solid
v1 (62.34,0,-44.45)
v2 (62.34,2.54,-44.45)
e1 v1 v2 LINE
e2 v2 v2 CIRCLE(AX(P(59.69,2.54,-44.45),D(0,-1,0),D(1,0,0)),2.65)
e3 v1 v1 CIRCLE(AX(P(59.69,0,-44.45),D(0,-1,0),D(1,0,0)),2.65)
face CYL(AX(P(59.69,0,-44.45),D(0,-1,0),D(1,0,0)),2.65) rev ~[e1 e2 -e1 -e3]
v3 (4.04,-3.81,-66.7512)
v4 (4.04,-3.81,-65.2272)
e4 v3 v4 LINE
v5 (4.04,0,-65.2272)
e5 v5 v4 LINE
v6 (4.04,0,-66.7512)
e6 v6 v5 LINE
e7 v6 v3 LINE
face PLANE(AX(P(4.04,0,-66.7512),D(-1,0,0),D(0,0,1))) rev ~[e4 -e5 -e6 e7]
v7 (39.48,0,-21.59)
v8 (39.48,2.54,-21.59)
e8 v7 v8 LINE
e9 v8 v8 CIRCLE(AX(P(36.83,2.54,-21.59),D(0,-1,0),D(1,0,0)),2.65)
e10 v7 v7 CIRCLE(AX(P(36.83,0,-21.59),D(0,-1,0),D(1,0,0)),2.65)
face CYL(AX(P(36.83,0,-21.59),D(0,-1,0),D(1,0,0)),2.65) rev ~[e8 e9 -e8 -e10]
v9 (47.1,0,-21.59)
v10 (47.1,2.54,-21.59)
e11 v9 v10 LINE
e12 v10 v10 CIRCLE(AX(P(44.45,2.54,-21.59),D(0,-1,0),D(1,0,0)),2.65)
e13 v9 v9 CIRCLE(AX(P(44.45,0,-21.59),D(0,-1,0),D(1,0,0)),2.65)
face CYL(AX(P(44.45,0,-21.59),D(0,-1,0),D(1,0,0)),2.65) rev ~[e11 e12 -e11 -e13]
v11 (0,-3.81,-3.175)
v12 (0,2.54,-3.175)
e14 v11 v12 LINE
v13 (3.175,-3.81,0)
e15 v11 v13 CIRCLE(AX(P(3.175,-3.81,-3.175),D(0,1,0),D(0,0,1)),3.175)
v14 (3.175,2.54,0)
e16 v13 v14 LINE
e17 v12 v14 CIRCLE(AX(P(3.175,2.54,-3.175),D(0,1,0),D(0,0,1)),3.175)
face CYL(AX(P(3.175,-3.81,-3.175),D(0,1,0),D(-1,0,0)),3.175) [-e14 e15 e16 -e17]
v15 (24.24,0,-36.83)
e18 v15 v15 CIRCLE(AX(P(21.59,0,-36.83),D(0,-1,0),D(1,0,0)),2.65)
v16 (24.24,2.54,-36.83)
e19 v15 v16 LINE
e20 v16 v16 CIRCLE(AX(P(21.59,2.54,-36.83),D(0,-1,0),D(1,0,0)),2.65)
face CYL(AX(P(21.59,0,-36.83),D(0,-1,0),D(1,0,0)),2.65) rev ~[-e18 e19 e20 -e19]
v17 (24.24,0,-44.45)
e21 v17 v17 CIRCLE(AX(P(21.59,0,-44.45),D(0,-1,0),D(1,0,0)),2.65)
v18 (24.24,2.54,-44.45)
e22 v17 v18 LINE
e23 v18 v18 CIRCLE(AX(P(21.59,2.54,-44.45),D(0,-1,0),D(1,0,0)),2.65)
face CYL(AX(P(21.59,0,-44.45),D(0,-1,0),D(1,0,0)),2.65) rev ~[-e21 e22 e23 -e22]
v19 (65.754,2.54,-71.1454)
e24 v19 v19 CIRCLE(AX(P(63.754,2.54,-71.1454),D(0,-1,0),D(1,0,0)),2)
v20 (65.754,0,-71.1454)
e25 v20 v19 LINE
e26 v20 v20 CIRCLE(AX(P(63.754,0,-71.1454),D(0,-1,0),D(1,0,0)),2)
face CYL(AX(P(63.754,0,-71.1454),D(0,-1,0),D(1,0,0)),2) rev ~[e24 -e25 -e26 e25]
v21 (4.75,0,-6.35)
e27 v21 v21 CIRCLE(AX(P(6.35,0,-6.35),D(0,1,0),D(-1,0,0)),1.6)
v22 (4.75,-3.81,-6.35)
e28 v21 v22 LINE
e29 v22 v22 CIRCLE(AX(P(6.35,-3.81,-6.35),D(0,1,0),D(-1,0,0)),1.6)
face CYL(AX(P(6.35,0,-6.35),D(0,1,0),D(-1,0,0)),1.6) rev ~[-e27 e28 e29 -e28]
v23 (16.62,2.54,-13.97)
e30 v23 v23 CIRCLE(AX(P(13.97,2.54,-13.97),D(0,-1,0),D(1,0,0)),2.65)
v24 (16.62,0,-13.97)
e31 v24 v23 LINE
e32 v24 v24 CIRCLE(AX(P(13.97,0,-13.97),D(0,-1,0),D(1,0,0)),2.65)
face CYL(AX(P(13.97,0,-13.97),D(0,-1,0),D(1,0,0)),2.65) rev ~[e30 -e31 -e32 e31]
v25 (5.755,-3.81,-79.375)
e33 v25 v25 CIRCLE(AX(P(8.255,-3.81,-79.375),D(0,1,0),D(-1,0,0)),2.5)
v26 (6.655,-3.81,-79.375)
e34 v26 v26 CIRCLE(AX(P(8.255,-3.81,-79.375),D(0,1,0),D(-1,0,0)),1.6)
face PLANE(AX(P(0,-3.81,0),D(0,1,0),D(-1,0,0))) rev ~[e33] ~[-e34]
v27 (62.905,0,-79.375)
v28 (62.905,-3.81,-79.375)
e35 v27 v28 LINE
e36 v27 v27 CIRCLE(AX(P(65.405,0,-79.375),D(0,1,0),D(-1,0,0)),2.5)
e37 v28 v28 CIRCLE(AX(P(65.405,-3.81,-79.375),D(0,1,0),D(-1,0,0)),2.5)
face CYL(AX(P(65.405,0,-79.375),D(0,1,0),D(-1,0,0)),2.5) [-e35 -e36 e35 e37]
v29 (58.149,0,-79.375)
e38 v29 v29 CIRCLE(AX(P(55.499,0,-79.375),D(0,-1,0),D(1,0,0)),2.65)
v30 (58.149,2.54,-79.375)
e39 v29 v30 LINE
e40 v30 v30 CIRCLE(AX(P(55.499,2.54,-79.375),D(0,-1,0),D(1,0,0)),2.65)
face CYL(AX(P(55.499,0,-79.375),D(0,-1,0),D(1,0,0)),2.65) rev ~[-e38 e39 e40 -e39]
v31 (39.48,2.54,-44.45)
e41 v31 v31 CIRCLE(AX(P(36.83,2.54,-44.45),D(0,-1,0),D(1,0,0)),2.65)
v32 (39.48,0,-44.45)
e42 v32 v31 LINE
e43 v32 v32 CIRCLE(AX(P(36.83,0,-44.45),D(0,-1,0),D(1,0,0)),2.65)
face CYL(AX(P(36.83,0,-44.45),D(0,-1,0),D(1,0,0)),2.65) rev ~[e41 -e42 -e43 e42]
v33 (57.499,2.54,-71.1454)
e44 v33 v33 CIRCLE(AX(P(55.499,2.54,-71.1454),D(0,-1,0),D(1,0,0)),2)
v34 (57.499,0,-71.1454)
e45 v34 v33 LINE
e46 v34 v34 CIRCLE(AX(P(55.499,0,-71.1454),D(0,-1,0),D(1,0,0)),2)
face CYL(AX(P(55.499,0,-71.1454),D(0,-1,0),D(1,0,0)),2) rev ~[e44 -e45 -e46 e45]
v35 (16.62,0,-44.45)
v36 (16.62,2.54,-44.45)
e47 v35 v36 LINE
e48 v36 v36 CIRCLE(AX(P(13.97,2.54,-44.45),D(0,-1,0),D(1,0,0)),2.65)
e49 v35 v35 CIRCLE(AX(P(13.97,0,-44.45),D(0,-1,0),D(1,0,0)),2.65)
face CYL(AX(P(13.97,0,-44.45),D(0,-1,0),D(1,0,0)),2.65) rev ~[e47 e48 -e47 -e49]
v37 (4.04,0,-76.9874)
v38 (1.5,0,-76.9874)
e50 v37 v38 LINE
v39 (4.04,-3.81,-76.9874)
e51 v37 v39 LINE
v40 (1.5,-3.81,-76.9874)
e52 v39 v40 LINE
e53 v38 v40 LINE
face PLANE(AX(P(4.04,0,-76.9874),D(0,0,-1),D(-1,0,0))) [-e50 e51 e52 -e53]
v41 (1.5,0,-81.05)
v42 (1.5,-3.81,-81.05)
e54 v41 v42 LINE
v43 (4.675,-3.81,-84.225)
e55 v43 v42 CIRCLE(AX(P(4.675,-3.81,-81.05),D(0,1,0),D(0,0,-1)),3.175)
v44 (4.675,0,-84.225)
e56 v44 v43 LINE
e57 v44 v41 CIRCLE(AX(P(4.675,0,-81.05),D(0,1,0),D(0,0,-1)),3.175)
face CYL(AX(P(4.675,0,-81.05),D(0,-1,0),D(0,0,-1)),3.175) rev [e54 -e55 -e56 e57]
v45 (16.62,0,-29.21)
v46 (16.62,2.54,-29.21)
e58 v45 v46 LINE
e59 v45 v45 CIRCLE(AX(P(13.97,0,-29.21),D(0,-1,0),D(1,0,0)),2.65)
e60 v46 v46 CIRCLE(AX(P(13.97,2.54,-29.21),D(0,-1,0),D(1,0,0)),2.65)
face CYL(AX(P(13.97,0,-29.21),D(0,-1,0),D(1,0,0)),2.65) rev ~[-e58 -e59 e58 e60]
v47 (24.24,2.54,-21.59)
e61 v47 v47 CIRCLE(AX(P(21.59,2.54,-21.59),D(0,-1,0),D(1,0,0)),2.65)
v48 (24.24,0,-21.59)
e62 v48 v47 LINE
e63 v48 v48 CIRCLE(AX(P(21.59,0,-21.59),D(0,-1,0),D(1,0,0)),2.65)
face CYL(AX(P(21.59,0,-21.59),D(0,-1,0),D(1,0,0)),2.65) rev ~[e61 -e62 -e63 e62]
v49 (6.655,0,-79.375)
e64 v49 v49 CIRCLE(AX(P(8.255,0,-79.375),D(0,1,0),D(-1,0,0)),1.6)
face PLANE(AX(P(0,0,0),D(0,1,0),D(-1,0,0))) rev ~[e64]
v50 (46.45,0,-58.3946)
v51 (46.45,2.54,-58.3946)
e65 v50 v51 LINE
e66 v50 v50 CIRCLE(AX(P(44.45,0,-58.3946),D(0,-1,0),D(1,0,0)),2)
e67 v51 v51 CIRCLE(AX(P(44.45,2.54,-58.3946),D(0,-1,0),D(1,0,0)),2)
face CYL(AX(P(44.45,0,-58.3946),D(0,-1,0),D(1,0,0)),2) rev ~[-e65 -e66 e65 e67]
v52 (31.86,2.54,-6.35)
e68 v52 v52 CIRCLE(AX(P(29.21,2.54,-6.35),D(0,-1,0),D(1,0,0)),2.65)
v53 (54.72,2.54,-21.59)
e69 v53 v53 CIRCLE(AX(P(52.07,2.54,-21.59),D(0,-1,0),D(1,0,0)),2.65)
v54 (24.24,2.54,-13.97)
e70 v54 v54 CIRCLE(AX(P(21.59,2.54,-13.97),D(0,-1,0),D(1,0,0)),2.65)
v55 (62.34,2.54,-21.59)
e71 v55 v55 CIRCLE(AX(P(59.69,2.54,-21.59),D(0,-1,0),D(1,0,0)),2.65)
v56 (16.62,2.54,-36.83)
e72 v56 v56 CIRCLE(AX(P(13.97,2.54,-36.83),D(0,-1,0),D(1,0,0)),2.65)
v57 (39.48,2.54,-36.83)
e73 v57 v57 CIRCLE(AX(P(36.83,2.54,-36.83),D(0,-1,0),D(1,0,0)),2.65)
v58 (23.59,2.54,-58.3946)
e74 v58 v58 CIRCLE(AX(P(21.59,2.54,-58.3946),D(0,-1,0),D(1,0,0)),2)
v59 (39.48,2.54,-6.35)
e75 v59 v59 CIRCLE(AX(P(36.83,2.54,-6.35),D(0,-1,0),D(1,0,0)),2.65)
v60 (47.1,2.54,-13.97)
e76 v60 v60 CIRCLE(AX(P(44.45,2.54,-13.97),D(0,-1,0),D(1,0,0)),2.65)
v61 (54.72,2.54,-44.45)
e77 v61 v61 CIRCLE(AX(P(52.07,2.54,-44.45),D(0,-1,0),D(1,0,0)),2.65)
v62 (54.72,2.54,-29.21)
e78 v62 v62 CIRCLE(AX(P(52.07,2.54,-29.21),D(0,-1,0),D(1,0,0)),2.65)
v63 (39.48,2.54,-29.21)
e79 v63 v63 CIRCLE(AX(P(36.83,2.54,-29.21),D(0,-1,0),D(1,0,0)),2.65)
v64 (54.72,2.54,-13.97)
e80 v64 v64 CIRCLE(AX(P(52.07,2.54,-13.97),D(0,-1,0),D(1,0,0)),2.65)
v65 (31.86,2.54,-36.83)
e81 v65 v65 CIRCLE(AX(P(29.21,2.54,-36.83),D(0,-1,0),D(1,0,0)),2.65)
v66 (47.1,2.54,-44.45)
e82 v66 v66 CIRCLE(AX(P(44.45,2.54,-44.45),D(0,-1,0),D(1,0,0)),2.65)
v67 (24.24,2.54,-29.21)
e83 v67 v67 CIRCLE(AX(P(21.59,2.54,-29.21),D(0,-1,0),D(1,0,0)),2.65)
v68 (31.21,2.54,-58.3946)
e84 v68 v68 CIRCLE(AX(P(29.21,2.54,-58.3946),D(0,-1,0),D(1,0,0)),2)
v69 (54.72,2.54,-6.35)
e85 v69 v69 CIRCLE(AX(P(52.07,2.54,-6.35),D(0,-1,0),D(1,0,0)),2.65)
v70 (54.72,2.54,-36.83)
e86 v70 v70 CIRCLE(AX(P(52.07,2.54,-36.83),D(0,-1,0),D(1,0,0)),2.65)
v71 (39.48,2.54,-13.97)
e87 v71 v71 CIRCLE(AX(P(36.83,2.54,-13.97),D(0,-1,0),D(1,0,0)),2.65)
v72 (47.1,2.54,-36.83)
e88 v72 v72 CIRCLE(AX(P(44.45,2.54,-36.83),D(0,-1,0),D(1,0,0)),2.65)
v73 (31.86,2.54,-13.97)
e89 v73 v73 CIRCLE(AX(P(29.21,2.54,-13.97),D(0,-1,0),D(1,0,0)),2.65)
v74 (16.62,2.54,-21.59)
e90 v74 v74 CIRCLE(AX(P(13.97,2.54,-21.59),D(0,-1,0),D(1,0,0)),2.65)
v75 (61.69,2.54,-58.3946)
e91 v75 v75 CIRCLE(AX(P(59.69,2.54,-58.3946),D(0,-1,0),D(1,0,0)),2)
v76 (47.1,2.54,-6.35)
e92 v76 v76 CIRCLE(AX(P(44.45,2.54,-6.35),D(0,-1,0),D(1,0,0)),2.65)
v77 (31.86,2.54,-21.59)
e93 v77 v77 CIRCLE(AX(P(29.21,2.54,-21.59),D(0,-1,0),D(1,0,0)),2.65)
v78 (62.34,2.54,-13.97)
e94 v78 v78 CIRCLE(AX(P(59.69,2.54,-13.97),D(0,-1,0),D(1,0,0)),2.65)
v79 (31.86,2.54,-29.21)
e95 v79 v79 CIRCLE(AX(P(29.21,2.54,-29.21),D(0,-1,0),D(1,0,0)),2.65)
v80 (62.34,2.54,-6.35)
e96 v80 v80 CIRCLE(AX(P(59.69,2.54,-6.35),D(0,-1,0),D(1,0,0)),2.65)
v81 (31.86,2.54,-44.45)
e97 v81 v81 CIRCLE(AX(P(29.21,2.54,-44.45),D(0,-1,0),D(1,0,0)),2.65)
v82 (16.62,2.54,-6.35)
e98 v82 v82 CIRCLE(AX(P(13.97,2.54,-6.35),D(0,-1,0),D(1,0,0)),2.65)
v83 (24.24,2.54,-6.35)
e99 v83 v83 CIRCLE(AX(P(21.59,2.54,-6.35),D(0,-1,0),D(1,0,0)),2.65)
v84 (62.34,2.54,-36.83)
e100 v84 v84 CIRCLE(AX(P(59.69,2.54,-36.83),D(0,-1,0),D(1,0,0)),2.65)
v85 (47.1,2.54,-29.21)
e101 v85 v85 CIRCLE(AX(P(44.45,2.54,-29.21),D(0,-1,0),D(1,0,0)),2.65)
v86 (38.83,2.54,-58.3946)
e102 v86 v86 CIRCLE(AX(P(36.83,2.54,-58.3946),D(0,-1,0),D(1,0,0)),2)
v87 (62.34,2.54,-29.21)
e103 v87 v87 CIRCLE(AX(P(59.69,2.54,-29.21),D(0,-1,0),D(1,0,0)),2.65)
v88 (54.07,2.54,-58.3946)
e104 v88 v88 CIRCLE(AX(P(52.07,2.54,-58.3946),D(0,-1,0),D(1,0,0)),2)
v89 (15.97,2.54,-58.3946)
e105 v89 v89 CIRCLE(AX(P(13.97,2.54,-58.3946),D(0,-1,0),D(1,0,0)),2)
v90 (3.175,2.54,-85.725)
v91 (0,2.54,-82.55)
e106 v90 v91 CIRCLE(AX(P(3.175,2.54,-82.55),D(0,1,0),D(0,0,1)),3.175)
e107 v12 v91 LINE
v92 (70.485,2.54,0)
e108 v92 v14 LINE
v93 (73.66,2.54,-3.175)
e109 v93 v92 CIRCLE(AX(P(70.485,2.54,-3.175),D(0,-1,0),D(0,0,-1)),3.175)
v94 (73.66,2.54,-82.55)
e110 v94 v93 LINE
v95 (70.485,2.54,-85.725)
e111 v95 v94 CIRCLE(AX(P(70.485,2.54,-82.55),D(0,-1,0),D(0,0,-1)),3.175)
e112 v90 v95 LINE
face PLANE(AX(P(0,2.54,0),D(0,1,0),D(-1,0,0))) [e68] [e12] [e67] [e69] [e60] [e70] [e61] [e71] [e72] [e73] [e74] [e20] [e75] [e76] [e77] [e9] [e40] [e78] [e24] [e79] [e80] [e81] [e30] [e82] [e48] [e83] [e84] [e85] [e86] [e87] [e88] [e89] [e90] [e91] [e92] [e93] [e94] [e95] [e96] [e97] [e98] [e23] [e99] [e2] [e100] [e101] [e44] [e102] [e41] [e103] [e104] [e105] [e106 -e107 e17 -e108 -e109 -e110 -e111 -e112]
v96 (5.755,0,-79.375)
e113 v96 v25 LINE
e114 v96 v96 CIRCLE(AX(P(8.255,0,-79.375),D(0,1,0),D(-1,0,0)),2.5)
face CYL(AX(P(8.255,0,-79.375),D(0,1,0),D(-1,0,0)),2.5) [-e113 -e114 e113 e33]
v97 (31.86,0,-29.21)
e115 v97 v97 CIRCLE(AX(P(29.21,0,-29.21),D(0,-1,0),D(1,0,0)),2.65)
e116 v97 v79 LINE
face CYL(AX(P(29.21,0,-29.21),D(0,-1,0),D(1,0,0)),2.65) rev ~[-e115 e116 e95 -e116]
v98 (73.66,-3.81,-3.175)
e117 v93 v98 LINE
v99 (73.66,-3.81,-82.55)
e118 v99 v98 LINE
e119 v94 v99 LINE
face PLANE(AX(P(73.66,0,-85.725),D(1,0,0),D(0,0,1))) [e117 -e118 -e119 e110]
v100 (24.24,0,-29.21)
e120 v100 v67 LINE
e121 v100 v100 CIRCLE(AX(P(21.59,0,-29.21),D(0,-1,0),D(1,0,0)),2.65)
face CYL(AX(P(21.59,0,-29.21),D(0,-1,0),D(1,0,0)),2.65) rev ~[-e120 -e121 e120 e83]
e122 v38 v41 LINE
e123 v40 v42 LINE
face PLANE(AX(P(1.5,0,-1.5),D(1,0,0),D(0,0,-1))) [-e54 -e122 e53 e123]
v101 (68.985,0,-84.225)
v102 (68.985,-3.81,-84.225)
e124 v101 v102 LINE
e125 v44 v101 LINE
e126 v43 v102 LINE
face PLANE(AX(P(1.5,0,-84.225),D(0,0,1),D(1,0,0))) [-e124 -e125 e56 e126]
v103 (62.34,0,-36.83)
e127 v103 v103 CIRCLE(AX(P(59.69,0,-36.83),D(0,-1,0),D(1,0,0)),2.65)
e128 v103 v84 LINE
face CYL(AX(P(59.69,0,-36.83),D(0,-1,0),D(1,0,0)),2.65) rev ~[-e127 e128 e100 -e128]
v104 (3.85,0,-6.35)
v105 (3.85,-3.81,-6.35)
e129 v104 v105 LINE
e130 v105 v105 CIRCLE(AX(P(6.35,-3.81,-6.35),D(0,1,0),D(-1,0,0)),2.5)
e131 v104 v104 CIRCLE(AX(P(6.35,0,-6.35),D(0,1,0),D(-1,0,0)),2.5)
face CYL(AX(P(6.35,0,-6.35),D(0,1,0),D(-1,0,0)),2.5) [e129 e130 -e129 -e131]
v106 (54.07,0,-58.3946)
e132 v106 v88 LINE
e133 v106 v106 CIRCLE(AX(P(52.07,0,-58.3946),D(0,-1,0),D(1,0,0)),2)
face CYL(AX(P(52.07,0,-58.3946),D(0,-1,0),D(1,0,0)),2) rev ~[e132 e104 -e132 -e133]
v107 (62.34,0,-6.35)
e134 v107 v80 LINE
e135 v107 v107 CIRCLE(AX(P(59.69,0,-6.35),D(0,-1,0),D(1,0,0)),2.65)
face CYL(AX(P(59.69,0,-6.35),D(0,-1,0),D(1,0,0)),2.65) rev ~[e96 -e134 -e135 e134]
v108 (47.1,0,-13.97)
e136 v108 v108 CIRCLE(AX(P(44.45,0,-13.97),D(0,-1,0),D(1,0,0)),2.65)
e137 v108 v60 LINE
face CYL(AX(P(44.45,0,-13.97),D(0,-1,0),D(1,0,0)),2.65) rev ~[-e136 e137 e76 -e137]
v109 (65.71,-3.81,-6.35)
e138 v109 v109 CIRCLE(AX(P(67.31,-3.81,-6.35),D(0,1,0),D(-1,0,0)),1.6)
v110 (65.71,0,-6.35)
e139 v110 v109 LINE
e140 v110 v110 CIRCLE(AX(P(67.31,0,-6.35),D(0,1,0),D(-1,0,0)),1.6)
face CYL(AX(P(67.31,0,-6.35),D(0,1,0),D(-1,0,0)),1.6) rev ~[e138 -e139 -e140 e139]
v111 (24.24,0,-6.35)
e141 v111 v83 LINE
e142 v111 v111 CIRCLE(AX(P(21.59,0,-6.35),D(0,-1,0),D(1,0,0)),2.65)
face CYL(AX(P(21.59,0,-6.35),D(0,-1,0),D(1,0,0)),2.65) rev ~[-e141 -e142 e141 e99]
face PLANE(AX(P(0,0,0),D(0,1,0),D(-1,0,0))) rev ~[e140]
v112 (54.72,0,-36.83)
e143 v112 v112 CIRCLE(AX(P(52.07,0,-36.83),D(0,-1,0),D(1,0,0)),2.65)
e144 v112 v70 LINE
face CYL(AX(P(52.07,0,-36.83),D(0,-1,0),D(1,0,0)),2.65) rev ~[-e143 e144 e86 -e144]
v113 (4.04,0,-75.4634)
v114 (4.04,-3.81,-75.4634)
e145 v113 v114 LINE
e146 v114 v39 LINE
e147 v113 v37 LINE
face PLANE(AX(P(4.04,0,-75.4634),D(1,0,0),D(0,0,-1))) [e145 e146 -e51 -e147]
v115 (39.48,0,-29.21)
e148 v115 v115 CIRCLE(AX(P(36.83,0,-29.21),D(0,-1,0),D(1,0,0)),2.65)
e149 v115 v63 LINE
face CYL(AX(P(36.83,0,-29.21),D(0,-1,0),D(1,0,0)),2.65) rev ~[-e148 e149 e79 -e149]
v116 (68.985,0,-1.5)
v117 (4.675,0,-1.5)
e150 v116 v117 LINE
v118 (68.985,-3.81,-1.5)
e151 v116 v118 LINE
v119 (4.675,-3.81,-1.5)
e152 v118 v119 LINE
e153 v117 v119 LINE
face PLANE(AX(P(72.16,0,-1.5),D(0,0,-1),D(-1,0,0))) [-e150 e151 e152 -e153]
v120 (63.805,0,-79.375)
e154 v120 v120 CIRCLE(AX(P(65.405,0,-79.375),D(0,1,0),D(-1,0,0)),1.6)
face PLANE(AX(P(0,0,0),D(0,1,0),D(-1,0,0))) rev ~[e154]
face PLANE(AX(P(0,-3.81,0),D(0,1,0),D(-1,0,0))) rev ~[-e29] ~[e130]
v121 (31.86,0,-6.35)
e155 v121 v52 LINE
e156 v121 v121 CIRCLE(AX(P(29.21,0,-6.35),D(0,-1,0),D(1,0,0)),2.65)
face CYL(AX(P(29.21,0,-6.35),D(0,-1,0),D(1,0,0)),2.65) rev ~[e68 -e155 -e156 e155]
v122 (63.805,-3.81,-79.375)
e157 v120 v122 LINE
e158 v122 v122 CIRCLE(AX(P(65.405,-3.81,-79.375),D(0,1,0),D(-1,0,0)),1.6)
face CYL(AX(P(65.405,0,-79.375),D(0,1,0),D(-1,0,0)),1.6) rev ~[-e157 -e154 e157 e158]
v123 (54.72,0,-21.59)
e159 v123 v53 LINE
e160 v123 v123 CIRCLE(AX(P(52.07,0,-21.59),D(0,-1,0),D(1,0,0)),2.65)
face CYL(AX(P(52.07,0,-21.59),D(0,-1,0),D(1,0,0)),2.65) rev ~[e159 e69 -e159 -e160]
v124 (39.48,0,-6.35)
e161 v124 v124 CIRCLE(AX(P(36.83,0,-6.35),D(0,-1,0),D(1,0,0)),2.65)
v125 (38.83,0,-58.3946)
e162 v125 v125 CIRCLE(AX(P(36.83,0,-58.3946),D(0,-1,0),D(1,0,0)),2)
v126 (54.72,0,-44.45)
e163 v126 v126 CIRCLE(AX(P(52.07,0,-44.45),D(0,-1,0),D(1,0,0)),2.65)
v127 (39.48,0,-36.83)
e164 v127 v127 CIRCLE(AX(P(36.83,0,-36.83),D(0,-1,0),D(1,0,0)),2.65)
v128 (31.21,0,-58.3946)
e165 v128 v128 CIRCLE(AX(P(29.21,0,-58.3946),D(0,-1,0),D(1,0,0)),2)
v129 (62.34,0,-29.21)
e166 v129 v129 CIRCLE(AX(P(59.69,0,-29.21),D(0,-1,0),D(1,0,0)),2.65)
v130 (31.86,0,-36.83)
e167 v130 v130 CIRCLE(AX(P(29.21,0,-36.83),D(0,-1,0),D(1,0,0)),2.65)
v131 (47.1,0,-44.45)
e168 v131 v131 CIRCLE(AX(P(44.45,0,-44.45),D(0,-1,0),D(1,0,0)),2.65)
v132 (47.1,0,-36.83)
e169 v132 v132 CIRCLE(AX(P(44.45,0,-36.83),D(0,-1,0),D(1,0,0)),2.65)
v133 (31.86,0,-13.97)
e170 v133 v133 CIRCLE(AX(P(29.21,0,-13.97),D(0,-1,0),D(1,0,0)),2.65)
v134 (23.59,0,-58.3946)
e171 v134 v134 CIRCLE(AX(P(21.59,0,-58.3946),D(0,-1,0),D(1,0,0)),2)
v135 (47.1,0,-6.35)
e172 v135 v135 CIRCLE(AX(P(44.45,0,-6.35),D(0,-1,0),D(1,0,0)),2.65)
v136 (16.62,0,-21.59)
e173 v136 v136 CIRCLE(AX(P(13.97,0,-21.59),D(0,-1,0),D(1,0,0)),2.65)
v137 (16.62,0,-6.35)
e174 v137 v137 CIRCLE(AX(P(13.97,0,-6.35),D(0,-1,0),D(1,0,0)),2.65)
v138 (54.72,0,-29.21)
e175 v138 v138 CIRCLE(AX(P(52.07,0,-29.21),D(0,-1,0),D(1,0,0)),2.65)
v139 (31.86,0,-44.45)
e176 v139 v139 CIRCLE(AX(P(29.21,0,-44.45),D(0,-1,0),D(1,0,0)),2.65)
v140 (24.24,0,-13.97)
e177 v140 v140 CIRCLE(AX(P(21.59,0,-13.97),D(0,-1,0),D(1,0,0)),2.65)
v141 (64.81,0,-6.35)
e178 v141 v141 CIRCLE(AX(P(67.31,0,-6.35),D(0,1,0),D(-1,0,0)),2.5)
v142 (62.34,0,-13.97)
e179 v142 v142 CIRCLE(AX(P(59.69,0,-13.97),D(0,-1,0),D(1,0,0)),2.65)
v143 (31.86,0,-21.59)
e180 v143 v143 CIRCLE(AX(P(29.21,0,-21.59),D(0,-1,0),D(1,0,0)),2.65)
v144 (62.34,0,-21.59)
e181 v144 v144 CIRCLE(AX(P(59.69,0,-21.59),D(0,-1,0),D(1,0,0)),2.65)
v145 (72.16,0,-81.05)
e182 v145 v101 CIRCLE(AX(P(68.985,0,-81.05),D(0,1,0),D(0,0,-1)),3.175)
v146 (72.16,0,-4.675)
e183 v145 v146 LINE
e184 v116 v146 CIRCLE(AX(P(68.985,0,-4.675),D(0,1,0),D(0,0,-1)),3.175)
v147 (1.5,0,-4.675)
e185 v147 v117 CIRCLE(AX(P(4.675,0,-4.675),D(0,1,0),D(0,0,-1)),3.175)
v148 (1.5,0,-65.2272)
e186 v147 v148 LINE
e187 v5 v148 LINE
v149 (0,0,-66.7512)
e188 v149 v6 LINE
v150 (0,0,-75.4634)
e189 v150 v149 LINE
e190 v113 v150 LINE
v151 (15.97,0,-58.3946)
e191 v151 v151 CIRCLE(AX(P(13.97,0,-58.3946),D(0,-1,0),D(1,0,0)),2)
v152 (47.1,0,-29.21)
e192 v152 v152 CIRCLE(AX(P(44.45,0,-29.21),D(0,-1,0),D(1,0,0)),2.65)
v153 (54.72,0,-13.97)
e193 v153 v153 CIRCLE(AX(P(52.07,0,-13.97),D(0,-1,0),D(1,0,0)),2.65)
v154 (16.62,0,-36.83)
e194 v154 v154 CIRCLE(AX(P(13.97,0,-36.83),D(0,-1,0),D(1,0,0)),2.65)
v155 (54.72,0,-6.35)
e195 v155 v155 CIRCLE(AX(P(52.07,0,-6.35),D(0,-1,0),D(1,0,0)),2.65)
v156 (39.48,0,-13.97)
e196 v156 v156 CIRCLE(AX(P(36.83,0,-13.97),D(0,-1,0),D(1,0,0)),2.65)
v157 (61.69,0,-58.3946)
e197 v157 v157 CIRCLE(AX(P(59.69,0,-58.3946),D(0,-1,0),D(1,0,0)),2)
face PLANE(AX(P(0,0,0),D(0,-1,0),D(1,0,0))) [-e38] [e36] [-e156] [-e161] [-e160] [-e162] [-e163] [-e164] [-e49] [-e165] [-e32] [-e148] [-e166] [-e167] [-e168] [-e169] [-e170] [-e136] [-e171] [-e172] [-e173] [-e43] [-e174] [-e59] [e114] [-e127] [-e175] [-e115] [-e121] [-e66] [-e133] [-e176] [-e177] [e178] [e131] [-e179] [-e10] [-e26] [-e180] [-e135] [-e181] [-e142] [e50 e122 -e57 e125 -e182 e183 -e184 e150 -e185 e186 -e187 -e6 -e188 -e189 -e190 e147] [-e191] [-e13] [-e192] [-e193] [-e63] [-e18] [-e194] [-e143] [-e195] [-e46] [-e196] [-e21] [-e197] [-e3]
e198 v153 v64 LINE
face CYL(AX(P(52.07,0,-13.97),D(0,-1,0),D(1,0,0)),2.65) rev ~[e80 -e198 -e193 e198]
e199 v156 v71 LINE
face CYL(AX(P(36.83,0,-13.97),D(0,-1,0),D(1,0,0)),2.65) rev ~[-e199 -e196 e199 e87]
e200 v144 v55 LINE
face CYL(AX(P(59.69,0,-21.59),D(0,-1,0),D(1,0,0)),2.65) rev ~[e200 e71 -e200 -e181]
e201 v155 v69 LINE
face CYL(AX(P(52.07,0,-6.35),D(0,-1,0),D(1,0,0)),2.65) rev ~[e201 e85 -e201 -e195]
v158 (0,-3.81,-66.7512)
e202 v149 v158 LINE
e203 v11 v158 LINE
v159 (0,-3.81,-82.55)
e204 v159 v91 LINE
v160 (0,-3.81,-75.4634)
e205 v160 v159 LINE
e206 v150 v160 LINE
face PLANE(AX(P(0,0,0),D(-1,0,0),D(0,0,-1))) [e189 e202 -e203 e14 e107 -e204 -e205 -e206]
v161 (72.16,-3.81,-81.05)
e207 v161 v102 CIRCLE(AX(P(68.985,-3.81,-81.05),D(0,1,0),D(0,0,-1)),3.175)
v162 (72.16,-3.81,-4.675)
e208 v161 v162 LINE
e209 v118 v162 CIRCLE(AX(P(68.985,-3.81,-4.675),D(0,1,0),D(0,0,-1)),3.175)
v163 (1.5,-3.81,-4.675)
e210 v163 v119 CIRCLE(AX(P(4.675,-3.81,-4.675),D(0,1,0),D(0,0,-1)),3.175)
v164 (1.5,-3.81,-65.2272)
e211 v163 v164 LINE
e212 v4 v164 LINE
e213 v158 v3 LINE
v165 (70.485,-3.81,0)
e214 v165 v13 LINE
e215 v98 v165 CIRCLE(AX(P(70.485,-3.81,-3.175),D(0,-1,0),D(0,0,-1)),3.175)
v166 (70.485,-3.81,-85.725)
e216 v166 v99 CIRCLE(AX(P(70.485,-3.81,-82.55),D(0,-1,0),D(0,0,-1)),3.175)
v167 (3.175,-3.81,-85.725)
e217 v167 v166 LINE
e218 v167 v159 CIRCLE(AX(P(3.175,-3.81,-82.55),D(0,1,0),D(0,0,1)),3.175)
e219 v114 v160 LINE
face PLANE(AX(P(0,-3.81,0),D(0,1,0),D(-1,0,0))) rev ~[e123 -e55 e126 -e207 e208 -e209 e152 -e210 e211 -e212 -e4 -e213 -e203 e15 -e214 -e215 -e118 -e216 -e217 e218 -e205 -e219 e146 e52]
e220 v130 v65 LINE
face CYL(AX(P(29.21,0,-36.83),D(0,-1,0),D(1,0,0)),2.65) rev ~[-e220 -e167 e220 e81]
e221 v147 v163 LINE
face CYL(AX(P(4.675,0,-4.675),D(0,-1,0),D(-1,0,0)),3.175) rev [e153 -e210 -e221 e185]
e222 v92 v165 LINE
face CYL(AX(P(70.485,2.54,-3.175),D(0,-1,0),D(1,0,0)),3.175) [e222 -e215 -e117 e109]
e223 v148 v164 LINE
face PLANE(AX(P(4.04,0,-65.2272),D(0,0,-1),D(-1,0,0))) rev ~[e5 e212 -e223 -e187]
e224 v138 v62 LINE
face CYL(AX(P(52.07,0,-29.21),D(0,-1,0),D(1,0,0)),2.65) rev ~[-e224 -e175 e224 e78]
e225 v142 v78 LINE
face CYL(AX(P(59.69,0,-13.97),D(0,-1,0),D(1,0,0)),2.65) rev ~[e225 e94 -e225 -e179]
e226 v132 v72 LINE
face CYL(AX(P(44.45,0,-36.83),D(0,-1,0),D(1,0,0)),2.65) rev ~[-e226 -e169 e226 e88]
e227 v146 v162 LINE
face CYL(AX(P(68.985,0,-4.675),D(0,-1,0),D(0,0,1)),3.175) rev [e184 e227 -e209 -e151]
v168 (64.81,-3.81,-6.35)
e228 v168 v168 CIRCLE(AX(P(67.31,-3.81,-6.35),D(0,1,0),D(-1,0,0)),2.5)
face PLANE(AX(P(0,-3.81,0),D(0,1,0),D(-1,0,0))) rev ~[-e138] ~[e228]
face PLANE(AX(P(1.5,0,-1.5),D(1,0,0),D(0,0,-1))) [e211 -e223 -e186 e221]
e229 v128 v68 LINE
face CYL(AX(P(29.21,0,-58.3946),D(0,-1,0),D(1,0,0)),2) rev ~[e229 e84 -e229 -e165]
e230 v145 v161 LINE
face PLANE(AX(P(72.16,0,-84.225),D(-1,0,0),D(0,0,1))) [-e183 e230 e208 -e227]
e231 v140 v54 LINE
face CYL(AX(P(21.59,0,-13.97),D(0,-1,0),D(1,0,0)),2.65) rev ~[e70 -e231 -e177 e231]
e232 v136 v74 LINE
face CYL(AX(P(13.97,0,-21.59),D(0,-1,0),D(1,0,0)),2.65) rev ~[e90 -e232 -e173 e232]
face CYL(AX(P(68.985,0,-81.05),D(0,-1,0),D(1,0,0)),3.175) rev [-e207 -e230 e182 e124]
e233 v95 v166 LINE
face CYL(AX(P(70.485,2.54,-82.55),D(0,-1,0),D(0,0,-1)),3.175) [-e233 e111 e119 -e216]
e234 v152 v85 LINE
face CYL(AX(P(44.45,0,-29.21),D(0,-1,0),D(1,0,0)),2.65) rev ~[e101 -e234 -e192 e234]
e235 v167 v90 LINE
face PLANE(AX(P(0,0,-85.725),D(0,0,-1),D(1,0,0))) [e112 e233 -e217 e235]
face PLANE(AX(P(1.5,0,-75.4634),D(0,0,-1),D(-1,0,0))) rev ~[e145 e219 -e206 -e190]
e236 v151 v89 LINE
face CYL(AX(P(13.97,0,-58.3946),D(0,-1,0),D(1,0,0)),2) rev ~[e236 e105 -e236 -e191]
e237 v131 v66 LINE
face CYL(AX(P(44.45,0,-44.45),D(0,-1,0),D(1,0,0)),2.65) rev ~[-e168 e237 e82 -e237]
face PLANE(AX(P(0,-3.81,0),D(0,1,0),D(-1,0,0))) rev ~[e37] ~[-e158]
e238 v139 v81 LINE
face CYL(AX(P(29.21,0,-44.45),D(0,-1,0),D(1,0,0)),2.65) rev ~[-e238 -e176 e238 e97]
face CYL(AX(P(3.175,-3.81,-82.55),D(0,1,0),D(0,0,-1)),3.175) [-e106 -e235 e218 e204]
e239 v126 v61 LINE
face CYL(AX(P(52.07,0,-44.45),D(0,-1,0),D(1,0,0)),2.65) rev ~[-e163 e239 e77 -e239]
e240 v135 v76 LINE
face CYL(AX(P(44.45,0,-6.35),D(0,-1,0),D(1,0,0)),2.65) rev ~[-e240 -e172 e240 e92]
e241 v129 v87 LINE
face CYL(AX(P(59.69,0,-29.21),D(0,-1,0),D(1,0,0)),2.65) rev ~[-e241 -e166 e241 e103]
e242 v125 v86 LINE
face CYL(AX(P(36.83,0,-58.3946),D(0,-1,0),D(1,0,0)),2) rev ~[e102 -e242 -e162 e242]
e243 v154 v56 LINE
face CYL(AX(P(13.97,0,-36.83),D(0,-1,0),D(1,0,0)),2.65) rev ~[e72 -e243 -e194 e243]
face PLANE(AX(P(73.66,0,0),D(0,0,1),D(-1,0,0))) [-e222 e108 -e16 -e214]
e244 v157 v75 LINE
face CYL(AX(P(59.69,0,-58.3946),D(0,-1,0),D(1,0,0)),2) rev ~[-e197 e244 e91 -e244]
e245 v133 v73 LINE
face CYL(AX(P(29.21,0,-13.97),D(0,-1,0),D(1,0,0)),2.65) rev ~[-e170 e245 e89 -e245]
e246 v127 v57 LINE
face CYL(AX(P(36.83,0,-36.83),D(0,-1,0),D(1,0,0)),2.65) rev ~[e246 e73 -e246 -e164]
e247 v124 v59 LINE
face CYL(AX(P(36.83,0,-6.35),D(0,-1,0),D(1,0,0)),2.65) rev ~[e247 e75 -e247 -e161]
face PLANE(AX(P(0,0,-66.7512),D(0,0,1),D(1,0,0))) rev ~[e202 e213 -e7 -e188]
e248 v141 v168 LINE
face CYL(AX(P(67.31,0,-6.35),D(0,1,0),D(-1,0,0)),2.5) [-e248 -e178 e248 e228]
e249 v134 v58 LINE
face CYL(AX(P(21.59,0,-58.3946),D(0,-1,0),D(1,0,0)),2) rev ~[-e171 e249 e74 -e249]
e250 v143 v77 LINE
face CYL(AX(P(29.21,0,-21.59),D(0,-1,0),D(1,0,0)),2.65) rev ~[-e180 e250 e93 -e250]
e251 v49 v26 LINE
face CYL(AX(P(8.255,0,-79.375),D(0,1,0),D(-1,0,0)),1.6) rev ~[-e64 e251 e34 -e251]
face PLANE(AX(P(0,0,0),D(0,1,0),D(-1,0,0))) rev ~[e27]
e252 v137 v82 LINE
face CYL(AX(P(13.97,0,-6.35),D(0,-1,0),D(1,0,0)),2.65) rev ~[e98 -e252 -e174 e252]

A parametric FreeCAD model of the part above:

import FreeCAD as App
import Part
import Sketcher
Q = App.Units.Quantity


def edges_at(feature, points):
    """Names of the edges that pass closest to the given points."""
    edges = feature.Shape.Edges
    near = lambda p: min(range(len(edges)), key=lambda i: edges[i].distToShape(Part.Vertex(*p))[0])
    return sorted({f"Edge{near(p) + 1}" for p in points})


def add_polygon(sketch, points):
    """Adds a closed chain of lines whose ends are joined by coincident constraints."""
    first, n = sketch.GeometryCount, len(points)
    for a, b in zip(points, points[1:] + points[:1]):
        sketch.addGeometry(Part.LineSegment(App.Vector(*a, 0), App.Vector(*b, 0)), False)
    for i in range(n):
        sketch.addConstraint(Sketcher.Constraint("Coincident", first + i, 2, first + (i + 1) % n, 1))

doc = App.newDocument("Part")
body = doc.addObject("PartDesign::Body", "Body")

# Sketch on XZ plane
sketch1 = doc.addObject("Sketcher::SketchObject", "Sketch")
body.addObject(sketch1)
sketch1.AttachmentSupport = (doc.XZ_Plane, [""])
sketch1.MapMode = "FlatFace"
add_polygon(sketch1, [(74, -86), (0, -86), (0, 0), (74, 0)])  # lines 0-3
sketch1.addConstraint([
    Sketcher.Constraint("Horizontal", 0),
    Sketcher.Constraint("Vertical", 1),
    Sketcher.Constraint("Horizontal", 2),
    Sketcher.Constraint("Vertical", 3),
    Sketcher.Constraint("Coincident", 1, 2, -1, 1),
    Sketcher.Constraint("DistanceX", 0, 2, 0, 1, Q("2.9 in")),
    Sketcher.Constraint("DistanceY", 1, 1, 1, 2, Q("3.375 in")),
])
pad1 = doc.addObject("PartDesign::Pad", "Pad")
body.addObject(pad1)
pad1.Profile = sketch1
pad1.Length = Q("0.1 in")
pad1.Reversed = True

# Sketch on XZ plane
sketch2 = doc.addObject("Sketcher::SketchObject", "Sketch001")
body.addObject(sketch2)
sketch2.AttachmentSupport = (doc.XZ_Plane, [""])
sketch2.MapMode = "FlatFace"
add_polygon(sketch2, [(73.7, -85.7), (0, -85.7), (0, 0), (73.7, 0)])  # lines 0-3
add_polygon(sketch2, [(1.5, -1.5), (1.5, -84.2), (72.2, -84.2), (72.2, -1.5)])  # lines 4-7
sketch2.addGeometry(Part.Circle(App.Vector(8.3, -79.4, 0), App.Vector(0, 0, 1), 2.5), False)  # 8
sketch2.addGeometry(Part.Circle(App.Vector(8.3, -79.4, 0), App.Vector(0, 0, 1), 1.6), False)  # 9
sketch2.addGeometry(Part.Circle(App.Vector(65.4, -79.4, 0), App.Vector(0, 0, 1), 2.5), False)  # 10
sketch2.addGeometry(Part.Circle(App.Vector(65.4, -79.4, 0), App.Vector(0, 0, 1), 1.6), False)  # 11
sketch2.addGeometry(Part.Circle(App.Vector(67.3, -6.3, 0), App.Vector(0, 0, 1), 2.5), False)  # 12
sketch2.addGeometry(Part.Circle(App.Vector(67.3, -6.3, 0), App.Vector(0, 0, 1), 1.6), False)  # 13
sketch2.addGeometry(Part.Circle(App.Vector(6.3, -6.3, 0), App.Vector(0, 0, 1), 2.5), False)  # 14
sketch2.addGeometry(Part.Circle(App.Vector(6.3, -6.3, 0), App.Vector(0, 0, 1), 1.6), False)  # 15
sketch2.addConstraint([
    Sketcher.Constraint("Horizontal", 0),
    Sketcher.Constraint("Vertical", 1),
    Sketcher.Constraint("Horizontal", 2),
    Sketcher.Constraint("Vertical", 3),
    Sketcher.Constraint("Vertical", 4),
    Sketcher.Constraint("Horizontal", 5),
    Sketcher.Constraint("Vertical", 6),
    Sketcher.Constraint("Horizontal", 7),
    Sketcher.Constraint("Coincident", 1, 2, -1, 1),
    Sketcher.Constraint("Coincident", 9, 3, 8, 3),
    Sketcher.Constraint("Coincident", 11, 3, 10, 3),
    Sketcher.Constraint("Coincident", 13, 3, 12, 3),
    Sketcher.Constraint("Coincident", 15, 3, 14, 3),
    Sketcher.Constraint("Equal", 8, 10),
    Sketcher.Constraint("Equal", 9, 11),
    Sketcher.Constraint("Equal", 10, 12),
    Sketcher.Constraint("Equal", 11, 13),
    Sketcher.Constraint("Equal", 12, 14),
    Sketcher.Constraint("Equal", 13, 15),
    Sketcher.Constraint("Horizontal", 9, 3, 10, 3),
    Sketcher.Constraint("Horizontal", 13, 3, 14, 3),
    Sketcher.Constraint("DistanceX", 14, 3, 12, 3, Q("2.4 in")),
    Sketcher.Constraint("Diameter", 8, Q("5 mm")),
    Sketcher.Constraint("Diameter", 9, Q("3.2 mm")),
    Sketcher.Constraint("DistanceX", 8, 3, 10, 3, Q("2.25 in")),
    Sketcher.Constraint("DistanceX", 0, 2, 0, 1, Q("2.9 in")),
    Sketcher.Constraint("DistanceY", 10, 3, 12, 3, Q("2.875 in")),
    Sketcher.Constraint("DistanceY", 1, 1, 1, 2, Q("3.375 in")),
    Sketcher.Constraint("DistanceX", -1, 1, 12, 3, Q("2.65 in")),
    Sketcher.Constraint("DistanceY", 12, 3, -1, 1, Q("0.25 in")),
    Sketcher.Constraint("DistanceX", -1, 1, 4, 2, Q("1.5 mm")),
    Sketcher.Constraint("DistanceY", 6, 2, -1, 1, Q("1.5 mm")),
    Sketcher.Constraint("DistanceY", 0, 2, 4, 2, Q("1.5 mm")),
    Sketcher.Constraint("DistanceX", 5, 2, 3, 2, Q("1.5 mm")),
    Sketcher.Constraint("DistanceX", -1, 1, 8, 3, Q("0.325 in")),
])
pad2 = doc.addObject("PartDesign::Pad", "Pad001")
body.addObject(pad2)
pad2.Profile = sketch2
pad2.Length = Q("0.15 in")

# Sketch on XZ plane
sketch3 = doc.addObject("Sketcher::SketchObject", "Sketch002")
body.addObject(sketch3)
sketch3.AttachmentSupport = (doc.XZ_Plane, [""])
sketch3.MapMode = "FlatFace"
sketch3.addGeometry([
    Part.Circle(App.Vector(59.7, -6.3, 0), App.Vector(0, 0, 1), 2.6),  # 0
    Part.Circle(App.Vector(59.7, -14, 0), App.Vector(0, 0, 1), 2.6),  # 1
    Part.Circle(App.Vector(59.7, -21.6, 0), App.Vector(0, 0, 1), 2.6),  # 2
    Part.Circle(App.Vector(59.7, -29.2, 0), App.Vector(0, 0, 1), 2.6),  # 3
    Part.Circle(App.Vector(59.7, -36.8, 0), App.Vector(0, 0, 1), 2.6),  # 4
    Part.Circle(App.Vector(59.7, -44.5, 0), App.Vector(0, 0, 1), 2.6),  # 5
    Part.Circle(App.Vector(52.1, -6.3, 0), App.Vector(0, 0, 1), 2.6),  # 6
    Part.Circle(App.Vector(52.1, -14, 0), App.Vector(0, 0, 1), 2.6),  # 7
    Part.Circle(App.Vector(52.1, -21.6, 0), App.Vector(0, 0, 1), 2.6),  # 8
    Part.Circle(App.Vector(52.1, -29.2, 0), App.Vector(0, 0, 1), 2.6),  # 9
    Part.Circle(App.Vector(52.1, -36.8, 0), App.Vector(0, 0, 1), 2.6),  # 10
    Part.Circle(App.Vector(52.1, -44.5, 0), App.Vector(0, 0, 1), 2.6),  # 11
    Part.Circle(App.Vector(44.5, -6.3, 0), App.Vector(0, 0, 1), 2.6),  # 12
    Part.Circle(App.Vector(44.5, -14, 0), App.Vector(0, 0, 1), 2.6),  # 13
    Part.Circle(App.Vector(44.5, -21.6, 0), App.Vector(0, 0, 1), 2.6),  # 14
    Part.Circle(App.Vector(44.5, -29.2, 0), App.Vector(0, 0, 1), 2.6),  # 15
    Part.Circle(App.Vector(44.5, -36.8, 0), App.Vector(0, 0, 1), 2.6),  # 16
    Part.Circle(App.Vector(44.5, -44.5, 0), App.Vector(0, 0, 1), 2.6),  # 17
    Part.Circle(App.Vector(36.8, -6.3, 0), App.Vector(0, 0, 1), 2.6),  # 18
    Part.Circle(App.Vector(36.8, -14, 0), App.Vector(0, 0, 1), 2.6),  # 19
    Part.Circle(App.Vector(36.8, -21.6, 0), App.Vector(0, 0, 1), 2.6),  # 20
    Part.Circle(App.Vector(36.8, -29.2, 0), App.Vector(0, 0, 1), 2.6),  # 21
    Part.Circle(App.Vector(36.8, -36.8, 0), App.Vector(0, 0, 1), 2.6),  # 22
    Part.Circle(App.Vector(36.8, -44.5, 0), App.Vector(0, 0, 1), 2.6),  # 23
    Part.Circle(App.Vector(29.2, -6.3, 0), App.Vector(0, 0, 1), 2.6),  # 24
    Part.Circle(App.Vector(29.2, -14, 0), App.Vector(0, 0, 1), 2.6),  # 25
    Part.Circle(App.Vector(29.2, -21.6, 0), App.Vector(0, 0, 1), 2.6),  # 26
    Part.Circle(App.Vector(29.2, -29.2, 0), App.Vector(0, 0, 1), 2.6),  # 27
    Part.Circle(App.Vector(29.2, -36.8, 0), App.Vector(0, 0, 1), 2.6),  # 28
    Part.Circle(App.Vector(29.2, -44.5, 0), App.Vector(0, 0, 1), 2.6),  # 29
    Part.Circle(App.Vector(21.6, -6.3, 0), App.Vector(0, 0, 1), 2.6),  # 30
    Part.Circle(App.Vector(21.6, -14, 0), App.Vector(0, 0, 1), 2.6),  # 31
    Part.Circle(App.Vector(21.6, -21.6, 0), App.Vector(0, 0, 1), 2.6),  # 32
    Part.Circle(App.Vector(21.6, -29.2, 0), App.Vector(0, 0, 1), 2.6),  # 33
    Part.Circle(App.Vector(21.6, -36.8, 0), App.Vector(0, 0, 1), 2.6),  # 34
    Part.Circle(App.Vector(21.6, -44.5, 0), App.Vector(0, 0, 1), 2.6),  # 35
    Part.Circle(App.Vector(14, -6.3, 0), App.Vector(0, 0, 1), 2.6),  # 36
    Part.Circle(App.Vector(14, -14, 0), App.Vector(0, 0, 1), 2.6),  # 37
    Part.Circle(App.Vector(14, -21.6, 0), App.Vector(0, 0, 1), 2.6),  # 38
    Part.Circle(App.Vector(14, -29.2, 0), App.Vector(0, 0, 1), 2.6),  # 39
    Part.Circle(App.Vector(14, -36.8, 0), App.Vector(0, 0, 1), 2.6),  # 40
    Part.Circle(App.Vector(14, -44.5, 0), App.Vector(0, 0, 1), 2.6),  # 41
    Part.Circle(App.Vector(59.7, -58.4, 0), App.Vector(0, 0, 1), 2),  # 42
    Part.Circle(App.Vector(52.1, -58.4, 0), App.Vector(0, 0, 1), 2),  # 43
    Part.Circle(App.Vector(44.5, -58.4, 0), App.Vector(0, 0, 1), 2),  # 44
    Part.Circle(App.Vector(36.8, -58.4, 0), App.Vector(0, 0, 1), 2),  # 45
    Part.Circle(App.Vector(29.2, -58.4, 0), App.Vector(0, 0, 1), 2),  # 46
    Part.Circle(App.Vector(21.6, -58.4, 0), App.Vector(0, 0, 1), 2),  # 47
    Part.Circle(App.Vector(14, -58.4, 0), App.Vector(0, 0, 1), 2),  # 48
    Part.Circle(App.Vector(55.5, -79.4, 0), App.Vector(0, 0, 1), 2.6),  # 49
    Part.Circle(App.Vector(55.5, -71.1, 0), App.Vector(0, 0, 1), 2),  # 50
    Part.Circle(App.Vector(63.8, -71.1, 0), App.Vector(0, 0, 1), 2),  # 51
], False)
sketch3.addConstraint([
    Sketcher.Constraint("Equal", 0, 1),
    Sketcher.Constraint("Equal", 1, 2),
    Sketcher.Constraint("Equal", 2, 3),
    Sketcher.Constraint("Equal", 3, 4),
    Sketcher.Constraint("Equal", 4, 5),
    Sketcher.Constraint("Equal", 5, 6),
    Sketcher.Constraint("Equal", 6, 7),
    Sketcher.Constraint("Equal", 7, 8),
    Sketcher.Constraint("Equal", 8, 9),
    Sketcher.Constraint("Equal", 9, 10),
    Sketcher.Constraint("Equal", 10, 11),
    Sketcher.Constraint("Equal", 11, 12),
    Sketcher.Constraint("Equal", 12, 13),
    Sketcher.Constraint("Equal", 13, 14),
    Sketcher.Constraint("Equal", 14, 15),
    Sketcher.Constraint("Equal", 15, 16),
    Sketcher.Constraint("Equal", 16, 17),
    Sketcher.Constraint("Equal", 17, 18),
    Sketcher.Constraint("Equal", 18, 19),
    Sketcher.Constraint("Equal", 19, 20),
    Sketcher.Constraint("Equal", 20, 21),
    Sketcher.Constraint("Equal", 21, 22),
    Sketcher.Constraint("Equal", 22, 23),
    Sketcher.Constraint("Equal", 23, 24),
    Sketcher.Constraint("Equal", 24, 25),
    Sketcher.Constraint("Equal", 25, 26),
    Sketcher.Constraint("Equal", 26, 27),
    Sketcher.Constraint("Equal", 27, 28),
    Sketcher.Constraint("Equal", 28, 29),
    Sketcher.Constraint("Equal", 29, 30),
    Sketcher.Constraint("Equal", 30, 31),
    Sketcher.Constraint("Equal", 31, 32),
    Sketcher.Constraint("Equal", 32, 33),
    Sketcher.Constraint("Equal", 33, 34),
    Sketcher.Constraint("Equal", 34, 35),
    Sketcher.Constraint("Equal", 35, 36),
    Sketcher.Constraint("Equal", 36, 37),
    Sketcher.Constraint("Equal", 37, 38),
    Sketcher.Constraint("Equal", 38, 39),
    Sketcher.Constraint("Equal", 39, 40),
    Sketcher.Constraint("Equal", 40, 41),
    Sketcher.Constraint("Equal", 42, 43),
    Sketcher.Constraint("Equal", 43, 44),
    Sketcher.Constraint("Equal", 44, 45),
    Sketcher.Constraint("Equal", 45, 46),
    Sketcher.Constraint("Equal", 46, 47),
    Sketcher.Constraint("Equal", 47, 48),
    Sketcher.Constraint("Equal", 41, 49),
    Sketcher.Constraint("Equal", 48, 50),
    Sketcher.Constraint("Equal", 50, 51),
    Sketcher.Constraint("Horizontal", 0, 3, 6, 3),
    Sketcher.Constraint("Horizontal", 1, 3, 7, 3),
    Sketcher.Constraint("Horizontal", 2, 3, 8, 3),
    Sketcher.Constraint("Horizontal", 3, 3, 9, 3),
    Sketcher.Constraint("Horizontal", 4, 3, 10, 3),
    Sketcher.Constraint("Horizontal", 5, 3, 11, 3),
    Sketcher.Constraint("Horizontal", 6, 3, 12, 3),
    Sketcher.Constraint("Horizontal", 7, 3, 13, 3),
    Sketcher.Constraint("Horizontal", 8, 3, 14, 3),
    Sketcher.Constraint("Horizontal", 9, 3, 15, 3),
    Sketcher.Constraint("Horizontal", 10, 3, 16, 3),
    Sketcher.Constraint("Horizontal", 11, 3, 17, 3),
    Sketcher.Constraint("Horizontal", 12, 3, 18, 3),
    Sketcher.Constraint("Horizontal", 13, 3, 19, 3),
    Sketcher.Constraint("Horizontal", 14, 3, 20, 3),
    Sketcher.Constraint("Horizontal", 15, 3, 21, 3),
    Sketcher.Constraint("Horizontal", 16, 3, 22, 3),
    Sketcher.Constraint("Horizontal", 17, 3, 23, 3),
    Sketcher.Constraint("Horizontal", 18, 3, 24, 3),
    Sketcher.Constraint("Horizontal", 19, 3, 25, 3),
    Sketcher.Constraint("Horizontal", 20, 3, 26, 3),
    Sketcher.Constraint("Horizontal", 21, 3, 27, 3),
    Sketcher.Constraint("Horizontal", 22, 3, 28, 3),
    Sketcher.Constraint("Horizontal", 23, 3, 29, 3),
    Sketcher.Constraint("Horizontal", 24, 3, 30, 3),
    Sketcher.Constraint("Horizontal", 25, 3, 31, 3),
    Sketcher.Constraint("Horizontal", 26, 3, 32, 3),
    Sketcher.Constraint("Horizontal", 27, 3, 33, 3),
    Sketcher.Constraint("Horizontal", 28, 3, 34, 3),
    Sketcher.Constraint("Horizontal", 29, 3, 35, 3),
    Sketcher.Constraint("Horizontal", 30, 3, 36, 3),
    Sketcher.Constraint("Horizontal", 31, 3, 37, 3),
    Sketcher.Constraint("Horizontal", 32, 3, 38, 3),
    Sketcher.Constraint("Horizontal", 33, 3, 39, 3),
    Sketcher.Constraint("Horizontal", 34, 3, 40, 3),
    Sketcher.Constraint("Horizontal", 35, 3, 41, 3),
    Sketcher.Constraint("Horizontal", 42, 3, 43, 3),
    Sketcher.Constraint("Horizontal", 43, 3, 44, 3),
    Sketcher.Constraint("Horizontal", 44, 3, 45, 3),
    Sketcher.Constraint("Horizontal", 45, 3, 46, 3),
    Sketcher.Constraint("Horizontal", 46, 3, 47, 3),
    Sketcher.Constraint("Horizontal", 47, 3, 48, 3),
    Sketcher.Constraint("Horizontal", 50, 3, 51, 3),
    Sketcher.Constraint("Vertical", 0, 3, 1, 3),
    Sketcher.Constraint("Vertical", 1, 3, 2, 3),
    Sketcher.Constraint("Vertical", 2, 3, 3, 3),
    Sketcher.Constraint("Vertical", 3, 3, 4, 3),
    Sketcher.Constraint("Vertical", 4, 3, 5, 3),
    Sketcher.Constraint("Vertical", 6, 3, 7, 3),
    Sketcher.Constraint("Vertical", 7, 3, 8, 3),
    Sketcher.Constraint("Vertical", 8, 3, 9, 3),
    Sketcher.Constraint("Vertical", 9, 3, 10, 3),
    Sketcher.Constraint("Vertical", 10, 3, 11, 3),
    Sketcher.Constraint("Vertical", 12, 3, 13, 3),
    Sketcher.Constraint("Vertical", 13, 3, 14, 3),
    Sketcher.Constraint("Vertical", 14, 3, 15, 3),
    Sketcher.Constraint("Vertical", 15, 3, 16, 3),
    Sketcher.Constraint("Vertical", 16, 3, 17, 3),
    Sketcher.Constraint("Vertical", 18, 3, 19, 3),
    Sketcher.Constraint("Vertical", 19, 3, 20, 3),
    Sketcher.Constraint("Vertical", 20, 3, 21, 3),
    Sketcher.Constraint("Vertical", 21, 3, 22, 3),
    Sketcher.Constraint("Vertical", 22, 3, 23, 3),
    Sketcher.Constraint("Vertical", 24, 3, 25, 3),
    Sketcher.Constraint("Vertical", 25, 3, 26, 3),
    Sketcher.Constraint("Vertical", 26, 3, 27, 3),
    Sketcher.Constraint("Vertical", 27, 3, 28, 3),
    Sketcher.Constraint("Vertical", 28, 3, 29, 3),
    Sketcher.Constraint("Vertical", 30, 3, 31, 3),
    Sketcher.Constraint("Vertical", 31, 3, 32, 3),
    Sketcher.Constraint("Vertical", 32, 3, 33, 3),
    Sketcher.Constraint("Vertical", 33, 3, 34, 3),
    Sketcher.Constraint("Vertical", 34, 3, 35, 3),
    Sketcher.Constraint("Vertical", 36, 3, 37, 3),
    Sketcher.Constraint("Vertical", 37, 3, 38, 3),
    Sketcher.Constraint("Vertical", 38, 3, 39, 3),
    Sketcher.Constraint("Vertical", 39, 3, 40, 3),
    Sketcher.Constraint("Vertical", 40, 3, 41, 3),
    Sketcher.Constraint("Vertical", 5, 3, 42, 3),
    Sketcher.Constraint("Vertical", 11, 3, 43, 3),
    Sketcher.Constraint("Vertical", 17, 3, 44, 3),
    Sketcher.Constraint("Vertical", 23, 3, 45, 3),
    Sketcher.Constraint("Vertical", 29, 3, 46, 3),
    Sketcher.Constraint("Vertical", 35, 3, 47, 3),
    Sketcher.Constraint("Vertical", 41, 3, 48, 3),
    Sketcher.Constraint("Vertical", 49, 3, 50, 3),
    Sketcher.Constraint("DistanceY", 1, 3, 0, 3, Q("0.3 in")),
    Sketcher.Constraint("DistanceY", 2, 3, 1, 3, Q("0.3 in")),
    Sketcher.Constraint("DistanceY", 3, 3, 2, 3, Q("0.3 in")),
    Sketcher.Constraint("DistanceY", 4, 3, 3, 3, Q("0.3 in")),
    Sketcher.Constraint("DistanceY", 5, 3, 4, 3, Q("0.3 in")),
    Sketcher.Constraint("DistanceX", 6, 3, 0, 3, Q("0.3 in")),
    Sketcher.Constraint("DistanceX", 12, 3, 6, 3, Q("0.3 in")),
    Sketcher.Constraint("DistanceX", 18, 3, 12, 3, Q("0.3 in")),
    Sketcher.Constraint("DistanceX", 24, 3, 18, 3, Q("0.3 in")),
    Sketcher.Constraint("DistanceX", 30, 3, 24, 3, Q("0.3 in")),
    Sketcher.Constraint("DistanceX", 36, 3, 30, 3, Q("0.3 in")),
    Sketcher.Constraint("Diameter", 0, Q("5.3 mm")),
    Sketcher.Constraint("Diameter", 42, Q("4 mm")),
    Sketcher.Constraint("DistanceY", 49, 3, 43, 3, Q("0.826 in")),
    Sketcher.Constraint("DistanceY", 49, 3, 50, 3, Q("0.324 in")),
    Sketcher.Constraint("DistanceX", 50, 3, 51, 3, Q("0.325 in")),
    Sketcher.Constraint("DistanceX", -1, 1, 0, 3, Q("2.35 in")),
    Sketcher.Constraint("DistanceY", 0, 3, -1, 1, Q("0.25 in")),
    Sketcher.Constraint("DistanceX", -1, 1, 51, 3, Q("2.51 in")),
    Sketcher.Constraint("DistanceY", 42, 3, -1, 1, Q("2.299 in")),
])
pocket1 = doc.addObject("PartDesign::Pocket", "Pocket")
body.addObject(pocket1)
pocket1.Profile = sketch3
pocket1.Type = "ThroughAll"

# Sketch on XZ plane
sketch4 = doc.addObject("Sketcher::SketchObject", "Sketch003")
body.addObject(sketch4)
sketch4.AttachmentSupport = (doc.XZ_Plane, [""])
sketch4.MapMode = "FlatFace"
add_polygon(sketch4, [(1.5, -75.5), (1.5, -66.8), (0, -66.8), (0, -75.5)])  # lines 0-3
sketch4.addConstraint([
    Sketcher.Constraint("Vertical", 0),
    Sketcher.Constraint("Horizontal", 1),
    Sketcher.Constraint("Vertical", 2),
    Sketcher.Constraint("Horizontal", 3),
    Sketcher.Constraint("PointOnObject", 1, 2, -2),
    Sketcher.Constraint("DistanceY", 0, 1, 0, 2, Q("0.343 in")),
    Sketcher.Constraint("DistanceY", 0, 2, -1, 1, Q("2.628 in")),
    Sketcher.Constraint("DistanceX", 1, 2, 1, 1, Q("1.5 mm")),
])
pocket2 = doc.addObject("PartDesign::Pocket", "Pocket001")
body.addObject(pocket2)
pocket2.Profile = sketch4
pocket2.Type = "ThroughAll"
pocket2.Reversed = True

# Sketch on XZ plane
sketch5 = doc.addObject("Sketcher::SketchObject", "Sketch004")
body.addObject(sketch5)
sketch5.AttachmentSupport = (doc.XZ_Plane, [""])
sketch5.MapMode = "FlatFace"
add_polygon(sketch5, [(4, -65.2), (1.5, -65.2), (1.5, -66.8), (4, -66.8)])  # lines 0-3
add_polygon(sketch5, [(4, -75.5), (1.5, -75.5), (1.5, -77), (4, -77)])  # lines 4-7
sketch5.addConstraint([
    Sketcher.Constraint("Horizontal", 0),
    Sketcher.Constraint("Vertical", 1),
    Sketcher.Constraint("Horizontal", 2),
    Sketcher.Constraint("Vertical", 3),
    Sketcher.Constraint("Horizontal", 4),
    Sketcher.Constraint("Vertical", 5),
    Sketcher.Constraint("Horizontal", 6),
    Sketcher.Constraint("Vertical", 7),
    Sketcher.Constraint("Vertical", 1, 2, 4, 2),
    Sketcher.Constraint("Vertical", 3, 2, 6, 2),
    Sketcher.Constraint("Equal", 3, 5),
    Sketcher.Constraint("DistanceX", 0, 2, 0, 1, Q("0.1 in")),
    Sketcher.Constraint("DistanceY", 1, 2, 1, 1, Q("0.06 in")),
    Sketcher.Constraint("DistanceY", 4, 2, 1, 2, Q("0.343 in")),
    Sketcher.Constraint("DistanceY", 0, 2, -1, 1, Q("2.568 in")),
    Sketcher.Constraint("DistanceX", -1, 1, 0, 2, Q("1.5 mm")),
])
pad3 = doc.addObject("PartDesign::Pad", "Pad002")
body.addObject(pad3)
pad3.Profile = sketch5
pad3.Length = Q("0.15 in")
doc.recompute()

fillet = doc.addObject("PartDesign::Fillet", "Fillet")
body.addObject(fillet)
fillet.Base = (pad3, edges_at(pad3, [
    (1.5, -1.905, -84.225),
    (0, -0.635, -85.725),
    (73.66, -0.635, -85.725),
    (72.16, -1.905, -84.225),
    (72.16, -1.905, -1.5),
    (73.66, -0.635, 0),
    (1.5, -1.905, -1.5),
    (0, -0.635, 0),
]))
fillet.Radius = Q("0.125 in")

doc.recompute()
